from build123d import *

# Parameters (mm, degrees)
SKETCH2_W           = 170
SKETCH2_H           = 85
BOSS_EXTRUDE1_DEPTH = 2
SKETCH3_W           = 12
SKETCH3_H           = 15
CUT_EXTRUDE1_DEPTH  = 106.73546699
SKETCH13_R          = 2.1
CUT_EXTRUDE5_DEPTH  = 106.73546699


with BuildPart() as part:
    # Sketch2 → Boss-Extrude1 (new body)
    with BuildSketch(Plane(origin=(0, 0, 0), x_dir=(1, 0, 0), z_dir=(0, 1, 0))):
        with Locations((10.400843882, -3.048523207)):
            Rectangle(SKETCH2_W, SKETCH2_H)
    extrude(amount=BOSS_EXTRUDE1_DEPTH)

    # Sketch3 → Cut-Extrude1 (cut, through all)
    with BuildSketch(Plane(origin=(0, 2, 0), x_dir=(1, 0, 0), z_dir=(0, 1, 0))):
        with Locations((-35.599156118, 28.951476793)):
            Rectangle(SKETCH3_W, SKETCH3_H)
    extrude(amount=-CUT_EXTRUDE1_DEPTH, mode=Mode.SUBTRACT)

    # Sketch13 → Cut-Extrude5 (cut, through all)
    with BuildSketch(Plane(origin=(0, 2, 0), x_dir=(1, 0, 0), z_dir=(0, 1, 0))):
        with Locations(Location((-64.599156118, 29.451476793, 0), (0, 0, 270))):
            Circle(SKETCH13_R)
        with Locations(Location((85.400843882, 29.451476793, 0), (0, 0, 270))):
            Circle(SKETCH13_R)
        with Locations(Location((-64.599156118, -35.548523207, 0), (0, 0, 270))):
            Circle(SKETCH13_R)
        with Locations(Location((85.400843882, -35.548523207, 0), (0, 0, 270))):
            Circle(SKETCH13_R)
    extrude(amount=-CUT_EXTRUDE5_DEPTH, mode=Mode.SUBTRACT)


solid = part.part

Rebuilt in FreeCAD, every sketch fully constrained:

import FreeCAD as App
import Part
import Sketcher
Q = App.Units.Quantity


def add_polygon(sketch, points):
    """Adds a closed chain of lines whose ends are joined by coincident constraints."""
    first, n = sketch.GeometryCount, len(points)
    for a, b in zip(points, points[1:] + points[:1]):
        sketch.addGeometry(Part.LineSegment(App.Vector(*a, 0), App.Vector(*b, 0)), False)
    for i in range(n):
        sketch.addConstraint(Sketcher.Constraint("Coincident", first + i, 2, first + (i + 1) % n, 1))

doc = App.newDocument("Part")
body = doc.addObject("PartDesign::Body", "Body")

sketch1 = body.newObject("Sketcher::SketchObject", "Sketch")
sketch1.AttachmentSupport = (doc.getObject("XZ_Plane"), [""])
sketch1.MapMode = "FlatFace"
add_polygon(sketch1, [(-75, -39), (-75, 46), (95, 46), (95, -39)])
sketch1.addConstraint(Sketcher.Constraint("Vertical", 0))
sketch1.addConstraint(Sketcher.Constraint("Horizontal", 1))
sketch1.addConstraint(Sketcher.Constraint("Vertical", 2))
sketch1.addConstraint(Sketcher.Constraint("Horizontal", 3))
sketch1.addConstraint(Sketcher.Constraint("DistanceX", 1, 1, 1, 2, Q("170 mm")))
sketch1.addConstraint(Sketcher.Constraint("DistanceY", 0, 1, 0, 2, Q("85 mm")))
sketch1.addConstraint(Sketcher.Constraint("DistanceX", 0, 2, -1, 1, Q("74.599156 mm")))
sketch1.addConstraint(Sketcher.Constraint("DistanceY", -1, 1, 0, 2, Q("45.548523 mm")))
pad1 = body.newObject("PartDesign::Pad", "Pad")
pad1.Profile = sketch1
pad1.Length = 2
pad1.Reversed = True

sketch2 = body.newObject("Sketcher::SketchObject", "Sketch001")
sketch2.AttachmentSupport = (doc.getObject("XZ_Plane"), [""])
sketch2.MapMode = "FlatFace"
sketch2.AttachmentOffset = App.Placement(App.Vector(0, 0, -2), App.Rotation())
add_polygon(sketch2, [(-42, -36), (-42, -21), (-30, -21), (-30, -36)])
sketch2.addConstraint(Sketcher.Constraint("Vertical", 0))
sketch2.addConstraint(Sketcher.Constraint("Horizontal", 1))
sketch2.addConstraint(Sketcher.Constraint("Vertical", 2))
sketch2.addConstraint(Sketcher.Constraint("Horizontal", 3))
sketch2.addConstraint(Sketcher.Constraint("DistanceX", 1, 1, 1, 2, Q("12 mm")))
sketch2.addConstraint(Sketcher.Constraint("DistanceY", 0, 1, 0, 2, Q("15 mm")))
sketch2.addConstraint(Sketcher.Constraint("DistanceX", 0, 2, -1, 1, Q("41.599156 mm")))
sketch2.addConstraint(Sketcher.Constraint("DistanceY", 0, 2, -1, 1, Q("21.451477 mm")))
pocket1 = body.newObject("PartDesign::Pocket", "Pocket")
pocket1.Profile = sketch2
pocket1.Type = "ThroughAll"
pocket1.Reversed = True

sketch3 = body.newObject("Sketcher::SketchObject", "Sketch002")
sketch3.AttachmentSupport = (doc.getObject("XZ_Plane"), [""])
sketch3.MapMode = "FlatFace"
sketch3.AttachmentOffset = App.Placement(App.Vector(0, 0, -2), App.Rotation())
sketch3.addGeometry(Part.Circle(App.Vector(-64.6, -29.5, 0), App.Vector(0, 0, 1), 2.1), False)
sketch3.addGeometry(Part.Circle(App.Vector(85.4, -29.5, 0), App.Vector(0, 0, 1), 2.1), False)
sketch3.addGeometry(Part.Circle(App.Vector(-64.6, 35.5, 0), App.Vector(0, 0, 1), 2.1), False)
sketch3.addGeometry(Part.Circle(App.Vector(85.4, 35.5, 0), App.Vector(0, 0, 1), 2.1), False)
sketch3.addConstraint(Sketcher.Constraint("Equal", 0, 1))
sketch3.addConstraint(Sketcher.Constraint("Equal", 1, 2))
sketch3.addConstraint(Sketcher.Constraint("Equal", 2, 3))
sketch3.addConstraint(Sketcher.Constraint("Horizontal", 0, 3, 1, 3))
sketch3.addConstraint(Sketcher.Constraint("Horizontal", 2, 3, 3, 3))
sketch3.addConstraint(Sketcher.Constraint("Vertical", 0, 3, 2, 3))
sketch3.addConstraint(Sketcher.Constraint("Vertical", 1, 3, 3, 3))
sketch3.addConstraint(Sketcher.Constraint("Diameter", 0, Q("4.2 mm")))
sketch3.addConstraint(Sketcher.Constraint("DistanceX", 0, 3, 1, 3, Q("150 mm")))
sketch3.addConstraint(Sketcher.Constraint("DistanceY", 0, 3, 2, 3, Q("65 mm")))
sketch3.addConstraint(Sketcher.Constraint("DistanceX", 0, 3, -1, 1, Q("64.599156 mm")))
sketch3.addConstraint(Sketcher.Constraint("DistanceY", 0, 3, -1, 1, Q("29.451477 mm")))
pocket2 = body.newObject("PartDesign::Pocket", "Pocket001")
pocket2.Profile = sketch3
pocket2.Type = "ThroughAll"
pocket2.Reversed = True

doc.recompute()
